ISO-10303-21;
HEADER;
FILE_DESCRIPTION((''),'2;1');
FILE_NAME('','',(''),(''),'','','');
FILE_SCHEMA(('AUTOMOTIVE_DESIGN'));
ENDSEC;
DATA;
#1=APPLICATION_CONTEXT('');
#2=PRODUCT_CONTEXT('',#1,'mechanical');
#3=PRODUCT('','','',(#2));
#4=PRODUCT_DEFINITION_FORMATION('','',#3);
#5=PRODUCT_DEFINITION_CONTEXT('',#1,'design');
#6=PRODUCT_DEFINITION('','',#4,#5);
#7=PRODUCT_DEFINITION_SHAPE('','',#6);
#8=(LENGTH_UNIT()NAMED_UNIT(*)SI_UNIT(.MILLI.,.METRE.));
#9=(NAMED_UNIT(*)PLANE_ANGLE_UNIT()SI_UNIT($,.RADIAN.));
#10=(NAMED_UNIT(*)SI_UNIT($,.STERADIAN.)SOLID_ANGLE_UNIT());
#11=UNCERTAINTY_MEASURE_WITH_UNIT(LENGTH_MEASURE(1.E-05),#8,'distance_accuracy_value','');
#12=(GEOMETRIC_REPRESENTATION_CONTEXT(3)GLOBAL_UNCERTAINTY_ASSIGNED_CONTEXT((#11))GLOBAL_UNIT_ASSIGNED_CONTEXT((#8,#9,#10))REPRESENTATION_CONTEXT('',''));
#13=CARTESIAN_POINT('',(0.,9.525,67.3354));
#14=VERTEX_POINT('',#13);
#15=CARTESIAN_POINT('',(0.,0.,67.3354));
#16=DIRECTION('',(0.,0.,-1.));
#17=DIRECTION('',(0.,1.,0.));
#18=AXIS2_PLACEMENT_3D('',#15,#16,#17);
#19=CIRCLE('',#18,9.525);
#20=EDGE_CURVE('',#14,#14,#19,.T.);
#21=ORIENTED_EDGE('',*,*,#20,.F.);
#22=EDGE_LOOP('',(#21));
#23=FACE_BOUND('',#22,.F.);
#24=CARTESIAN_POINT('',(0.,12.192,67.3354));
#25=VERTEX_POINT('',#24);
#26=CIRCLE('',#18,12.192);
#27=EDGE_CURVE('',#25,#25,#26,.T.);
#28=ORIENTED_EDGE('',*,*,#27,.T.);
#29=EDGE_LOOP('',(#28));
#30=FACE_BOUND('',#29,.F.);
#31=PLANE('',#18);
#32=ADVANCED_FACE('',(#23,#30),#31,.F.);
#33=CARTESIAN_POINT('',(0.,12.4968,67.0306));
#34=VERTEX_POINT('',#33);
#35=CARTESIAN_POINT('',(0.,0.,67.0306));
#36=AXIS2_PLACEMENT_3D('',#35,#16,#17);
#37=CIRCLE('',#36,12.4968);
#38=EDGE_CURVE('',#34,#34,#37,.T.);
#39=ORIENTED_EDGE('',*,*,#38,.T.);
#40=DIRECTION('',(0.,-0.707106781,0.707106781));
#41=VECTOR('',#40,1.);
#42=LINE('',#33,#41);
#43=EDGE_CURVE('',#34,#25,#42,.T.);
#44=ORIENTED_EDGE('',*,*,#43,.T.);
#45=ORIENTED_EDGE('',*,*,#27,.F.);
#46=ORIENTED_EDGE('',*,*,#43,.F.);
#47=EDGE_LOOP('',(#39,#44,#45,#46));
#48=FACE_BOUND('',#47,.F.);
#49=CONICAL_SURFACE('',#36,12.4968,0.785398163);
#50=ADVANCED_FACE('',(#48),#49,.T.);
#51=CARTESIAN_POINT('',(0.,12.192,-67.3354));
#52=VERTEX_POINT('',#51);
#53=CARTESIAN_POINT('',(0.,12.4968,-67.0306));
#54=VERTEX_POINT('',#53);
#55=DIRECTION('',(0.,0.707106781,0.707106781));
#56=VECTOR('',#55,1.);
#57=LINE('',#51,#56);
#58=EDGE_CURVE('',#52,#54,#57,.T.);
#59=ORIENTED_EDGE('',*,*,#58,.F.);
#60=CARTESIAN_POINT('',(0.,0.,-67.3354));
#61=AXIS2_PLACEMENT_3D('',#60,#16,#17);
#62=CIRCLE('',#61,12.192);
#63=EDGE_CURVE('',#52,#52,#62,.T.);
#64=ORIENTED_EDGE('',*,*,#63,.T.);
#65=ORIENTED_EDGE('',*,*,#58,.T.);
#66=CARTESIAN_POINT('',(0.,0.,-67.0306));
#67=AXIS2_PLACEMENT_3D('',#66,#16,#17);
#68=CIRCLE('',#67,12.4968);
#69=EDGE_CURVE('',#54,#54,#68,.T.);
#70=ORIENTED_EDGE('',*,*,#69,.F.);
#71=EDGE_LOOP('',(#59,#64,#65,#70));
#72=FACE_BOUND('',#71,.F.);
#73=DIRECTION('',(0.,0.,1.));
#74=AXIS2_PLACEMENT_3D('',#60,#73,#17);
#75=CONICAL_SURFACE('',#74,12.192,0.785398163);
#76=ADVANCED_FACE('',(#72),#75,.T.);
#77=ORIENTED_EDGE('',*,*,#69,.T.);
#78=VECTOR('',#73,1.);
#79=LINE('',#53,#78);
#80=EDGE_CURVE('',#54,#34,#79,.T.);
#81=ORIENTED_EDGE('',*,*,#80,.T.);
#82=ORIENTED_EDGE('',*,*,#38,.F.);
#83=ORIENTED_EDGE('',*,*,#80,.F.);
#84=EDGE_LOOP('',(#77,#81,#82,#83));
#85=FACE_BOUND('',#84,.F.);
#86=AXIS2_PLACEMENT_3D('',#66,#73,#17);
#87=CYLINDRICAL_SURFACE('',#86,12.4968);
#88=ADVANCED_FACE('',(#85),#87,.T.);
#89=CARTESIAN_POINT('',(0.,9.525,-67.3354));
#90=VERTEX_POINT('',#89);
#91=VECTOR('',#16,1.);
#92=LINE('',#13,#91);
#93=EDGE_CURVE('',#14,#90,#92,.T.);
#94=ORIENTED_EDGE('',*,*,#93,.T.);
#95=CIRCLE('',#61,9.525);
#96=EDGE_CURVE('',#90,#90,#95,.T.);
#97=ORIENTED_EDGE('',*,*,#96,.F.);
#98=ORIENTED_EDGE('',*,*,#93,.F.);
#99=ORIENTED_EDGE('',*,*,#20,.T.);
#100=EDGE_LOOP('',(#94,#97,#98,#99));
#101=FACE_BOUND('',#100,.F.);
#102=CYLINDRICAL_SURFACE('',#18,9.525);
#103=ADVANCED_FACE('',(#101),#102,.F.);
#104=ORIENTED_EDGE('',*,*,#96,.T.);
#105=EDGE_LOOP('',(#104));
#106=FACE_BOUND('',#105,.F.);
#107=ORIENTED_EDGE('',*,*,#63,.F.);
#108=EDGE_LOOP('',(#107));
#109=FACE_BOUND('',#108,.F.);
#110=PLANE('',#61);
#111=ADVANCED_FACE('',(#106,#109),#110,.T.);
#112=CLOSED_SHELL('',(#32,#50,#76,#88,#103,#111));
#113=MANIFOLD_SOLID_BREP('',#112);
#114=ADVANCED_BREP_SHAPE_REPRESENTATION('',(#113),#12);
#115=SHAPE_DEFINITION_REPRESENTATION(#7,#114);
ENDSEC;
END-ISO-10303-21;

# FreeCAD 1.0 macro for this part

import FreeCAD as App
import Part
import Sketcher

V = App.Vector
Q = App.Units.Quantity


def add_polygon(sketch, points):
    """Adds a closed chain of lines whose ends are joined by coincident constraints."""
    first, n = sketch.GeometryCount, len(points)
    for a, b in zip(points, points[1:] + points[:1]):
        sketch.addGeometry(Part.LineSegment(App.Vector(*a, 0), App.Vector(*b, 0)), False)
    for i in range(n):
        sketch.addConstraint(Sketcher.Constraint("Coincident", first + i, 2, first + (i + 1) % n, 1))

doc = App.newDocument("Part")
body = doc.addObject("PartDesign::Body", "Body")

# Sketch on YZ plane
sketch1 = doc.addObject("Sketcher::SketchObject", "Sketch")
body.addObject(sketch1)
sketch1.AttachmentSupport = (doc.YZ_Plane, [""])
sketch1.MapMode = "FlatFace"
add_polygon(sketch1, [(12.19, 67.34), (9.53, 67.34), (9.53, -67.34), (12.19, -67.34), (12.5, -67.03), (12.5, 67.03)])  # lines 0-5
sketch1.addConstraint([
    Sketcher.Constraint("Horizontal", 0),
    Sketcher.Constraint("Vertical", 1),
    Sketcher.Constraint("Horizontal", 2),
    Sketcher.Constraint("Vertical", 4),
    Sketcher.Constraint("Symmetric", 2, 2, 5, 2, -1),
    Sketcher.Constraint("Perpendicular", 3, 5),
    Sketcher.Constraint("Equal", 3, 5),
    Sketcher.Constraint("DistanceX", 0, 2, 0, 1, Q("0.105 in")),
    Sketcher.Constraint("DistanceY", 1, 2, 1, 1, Q("5.302 in")),
    Sketcher.Constraint("DistanceY", 4, 1, 4, 2, Q("5.278 in")),
    Sketcher.Constraint("DistanceX", -1, 1, 2, 2, Q("0.48 in")),
])
revolution = doc.addObject("PartDesign::Revolution", "Revolution")
body.addObject(revolution)
revolution.Profile = sketch1
revolution.ReferenceAxis = (sketch1, ["V_Axis"])
revolution.Angle = 360

doc.recompute()
